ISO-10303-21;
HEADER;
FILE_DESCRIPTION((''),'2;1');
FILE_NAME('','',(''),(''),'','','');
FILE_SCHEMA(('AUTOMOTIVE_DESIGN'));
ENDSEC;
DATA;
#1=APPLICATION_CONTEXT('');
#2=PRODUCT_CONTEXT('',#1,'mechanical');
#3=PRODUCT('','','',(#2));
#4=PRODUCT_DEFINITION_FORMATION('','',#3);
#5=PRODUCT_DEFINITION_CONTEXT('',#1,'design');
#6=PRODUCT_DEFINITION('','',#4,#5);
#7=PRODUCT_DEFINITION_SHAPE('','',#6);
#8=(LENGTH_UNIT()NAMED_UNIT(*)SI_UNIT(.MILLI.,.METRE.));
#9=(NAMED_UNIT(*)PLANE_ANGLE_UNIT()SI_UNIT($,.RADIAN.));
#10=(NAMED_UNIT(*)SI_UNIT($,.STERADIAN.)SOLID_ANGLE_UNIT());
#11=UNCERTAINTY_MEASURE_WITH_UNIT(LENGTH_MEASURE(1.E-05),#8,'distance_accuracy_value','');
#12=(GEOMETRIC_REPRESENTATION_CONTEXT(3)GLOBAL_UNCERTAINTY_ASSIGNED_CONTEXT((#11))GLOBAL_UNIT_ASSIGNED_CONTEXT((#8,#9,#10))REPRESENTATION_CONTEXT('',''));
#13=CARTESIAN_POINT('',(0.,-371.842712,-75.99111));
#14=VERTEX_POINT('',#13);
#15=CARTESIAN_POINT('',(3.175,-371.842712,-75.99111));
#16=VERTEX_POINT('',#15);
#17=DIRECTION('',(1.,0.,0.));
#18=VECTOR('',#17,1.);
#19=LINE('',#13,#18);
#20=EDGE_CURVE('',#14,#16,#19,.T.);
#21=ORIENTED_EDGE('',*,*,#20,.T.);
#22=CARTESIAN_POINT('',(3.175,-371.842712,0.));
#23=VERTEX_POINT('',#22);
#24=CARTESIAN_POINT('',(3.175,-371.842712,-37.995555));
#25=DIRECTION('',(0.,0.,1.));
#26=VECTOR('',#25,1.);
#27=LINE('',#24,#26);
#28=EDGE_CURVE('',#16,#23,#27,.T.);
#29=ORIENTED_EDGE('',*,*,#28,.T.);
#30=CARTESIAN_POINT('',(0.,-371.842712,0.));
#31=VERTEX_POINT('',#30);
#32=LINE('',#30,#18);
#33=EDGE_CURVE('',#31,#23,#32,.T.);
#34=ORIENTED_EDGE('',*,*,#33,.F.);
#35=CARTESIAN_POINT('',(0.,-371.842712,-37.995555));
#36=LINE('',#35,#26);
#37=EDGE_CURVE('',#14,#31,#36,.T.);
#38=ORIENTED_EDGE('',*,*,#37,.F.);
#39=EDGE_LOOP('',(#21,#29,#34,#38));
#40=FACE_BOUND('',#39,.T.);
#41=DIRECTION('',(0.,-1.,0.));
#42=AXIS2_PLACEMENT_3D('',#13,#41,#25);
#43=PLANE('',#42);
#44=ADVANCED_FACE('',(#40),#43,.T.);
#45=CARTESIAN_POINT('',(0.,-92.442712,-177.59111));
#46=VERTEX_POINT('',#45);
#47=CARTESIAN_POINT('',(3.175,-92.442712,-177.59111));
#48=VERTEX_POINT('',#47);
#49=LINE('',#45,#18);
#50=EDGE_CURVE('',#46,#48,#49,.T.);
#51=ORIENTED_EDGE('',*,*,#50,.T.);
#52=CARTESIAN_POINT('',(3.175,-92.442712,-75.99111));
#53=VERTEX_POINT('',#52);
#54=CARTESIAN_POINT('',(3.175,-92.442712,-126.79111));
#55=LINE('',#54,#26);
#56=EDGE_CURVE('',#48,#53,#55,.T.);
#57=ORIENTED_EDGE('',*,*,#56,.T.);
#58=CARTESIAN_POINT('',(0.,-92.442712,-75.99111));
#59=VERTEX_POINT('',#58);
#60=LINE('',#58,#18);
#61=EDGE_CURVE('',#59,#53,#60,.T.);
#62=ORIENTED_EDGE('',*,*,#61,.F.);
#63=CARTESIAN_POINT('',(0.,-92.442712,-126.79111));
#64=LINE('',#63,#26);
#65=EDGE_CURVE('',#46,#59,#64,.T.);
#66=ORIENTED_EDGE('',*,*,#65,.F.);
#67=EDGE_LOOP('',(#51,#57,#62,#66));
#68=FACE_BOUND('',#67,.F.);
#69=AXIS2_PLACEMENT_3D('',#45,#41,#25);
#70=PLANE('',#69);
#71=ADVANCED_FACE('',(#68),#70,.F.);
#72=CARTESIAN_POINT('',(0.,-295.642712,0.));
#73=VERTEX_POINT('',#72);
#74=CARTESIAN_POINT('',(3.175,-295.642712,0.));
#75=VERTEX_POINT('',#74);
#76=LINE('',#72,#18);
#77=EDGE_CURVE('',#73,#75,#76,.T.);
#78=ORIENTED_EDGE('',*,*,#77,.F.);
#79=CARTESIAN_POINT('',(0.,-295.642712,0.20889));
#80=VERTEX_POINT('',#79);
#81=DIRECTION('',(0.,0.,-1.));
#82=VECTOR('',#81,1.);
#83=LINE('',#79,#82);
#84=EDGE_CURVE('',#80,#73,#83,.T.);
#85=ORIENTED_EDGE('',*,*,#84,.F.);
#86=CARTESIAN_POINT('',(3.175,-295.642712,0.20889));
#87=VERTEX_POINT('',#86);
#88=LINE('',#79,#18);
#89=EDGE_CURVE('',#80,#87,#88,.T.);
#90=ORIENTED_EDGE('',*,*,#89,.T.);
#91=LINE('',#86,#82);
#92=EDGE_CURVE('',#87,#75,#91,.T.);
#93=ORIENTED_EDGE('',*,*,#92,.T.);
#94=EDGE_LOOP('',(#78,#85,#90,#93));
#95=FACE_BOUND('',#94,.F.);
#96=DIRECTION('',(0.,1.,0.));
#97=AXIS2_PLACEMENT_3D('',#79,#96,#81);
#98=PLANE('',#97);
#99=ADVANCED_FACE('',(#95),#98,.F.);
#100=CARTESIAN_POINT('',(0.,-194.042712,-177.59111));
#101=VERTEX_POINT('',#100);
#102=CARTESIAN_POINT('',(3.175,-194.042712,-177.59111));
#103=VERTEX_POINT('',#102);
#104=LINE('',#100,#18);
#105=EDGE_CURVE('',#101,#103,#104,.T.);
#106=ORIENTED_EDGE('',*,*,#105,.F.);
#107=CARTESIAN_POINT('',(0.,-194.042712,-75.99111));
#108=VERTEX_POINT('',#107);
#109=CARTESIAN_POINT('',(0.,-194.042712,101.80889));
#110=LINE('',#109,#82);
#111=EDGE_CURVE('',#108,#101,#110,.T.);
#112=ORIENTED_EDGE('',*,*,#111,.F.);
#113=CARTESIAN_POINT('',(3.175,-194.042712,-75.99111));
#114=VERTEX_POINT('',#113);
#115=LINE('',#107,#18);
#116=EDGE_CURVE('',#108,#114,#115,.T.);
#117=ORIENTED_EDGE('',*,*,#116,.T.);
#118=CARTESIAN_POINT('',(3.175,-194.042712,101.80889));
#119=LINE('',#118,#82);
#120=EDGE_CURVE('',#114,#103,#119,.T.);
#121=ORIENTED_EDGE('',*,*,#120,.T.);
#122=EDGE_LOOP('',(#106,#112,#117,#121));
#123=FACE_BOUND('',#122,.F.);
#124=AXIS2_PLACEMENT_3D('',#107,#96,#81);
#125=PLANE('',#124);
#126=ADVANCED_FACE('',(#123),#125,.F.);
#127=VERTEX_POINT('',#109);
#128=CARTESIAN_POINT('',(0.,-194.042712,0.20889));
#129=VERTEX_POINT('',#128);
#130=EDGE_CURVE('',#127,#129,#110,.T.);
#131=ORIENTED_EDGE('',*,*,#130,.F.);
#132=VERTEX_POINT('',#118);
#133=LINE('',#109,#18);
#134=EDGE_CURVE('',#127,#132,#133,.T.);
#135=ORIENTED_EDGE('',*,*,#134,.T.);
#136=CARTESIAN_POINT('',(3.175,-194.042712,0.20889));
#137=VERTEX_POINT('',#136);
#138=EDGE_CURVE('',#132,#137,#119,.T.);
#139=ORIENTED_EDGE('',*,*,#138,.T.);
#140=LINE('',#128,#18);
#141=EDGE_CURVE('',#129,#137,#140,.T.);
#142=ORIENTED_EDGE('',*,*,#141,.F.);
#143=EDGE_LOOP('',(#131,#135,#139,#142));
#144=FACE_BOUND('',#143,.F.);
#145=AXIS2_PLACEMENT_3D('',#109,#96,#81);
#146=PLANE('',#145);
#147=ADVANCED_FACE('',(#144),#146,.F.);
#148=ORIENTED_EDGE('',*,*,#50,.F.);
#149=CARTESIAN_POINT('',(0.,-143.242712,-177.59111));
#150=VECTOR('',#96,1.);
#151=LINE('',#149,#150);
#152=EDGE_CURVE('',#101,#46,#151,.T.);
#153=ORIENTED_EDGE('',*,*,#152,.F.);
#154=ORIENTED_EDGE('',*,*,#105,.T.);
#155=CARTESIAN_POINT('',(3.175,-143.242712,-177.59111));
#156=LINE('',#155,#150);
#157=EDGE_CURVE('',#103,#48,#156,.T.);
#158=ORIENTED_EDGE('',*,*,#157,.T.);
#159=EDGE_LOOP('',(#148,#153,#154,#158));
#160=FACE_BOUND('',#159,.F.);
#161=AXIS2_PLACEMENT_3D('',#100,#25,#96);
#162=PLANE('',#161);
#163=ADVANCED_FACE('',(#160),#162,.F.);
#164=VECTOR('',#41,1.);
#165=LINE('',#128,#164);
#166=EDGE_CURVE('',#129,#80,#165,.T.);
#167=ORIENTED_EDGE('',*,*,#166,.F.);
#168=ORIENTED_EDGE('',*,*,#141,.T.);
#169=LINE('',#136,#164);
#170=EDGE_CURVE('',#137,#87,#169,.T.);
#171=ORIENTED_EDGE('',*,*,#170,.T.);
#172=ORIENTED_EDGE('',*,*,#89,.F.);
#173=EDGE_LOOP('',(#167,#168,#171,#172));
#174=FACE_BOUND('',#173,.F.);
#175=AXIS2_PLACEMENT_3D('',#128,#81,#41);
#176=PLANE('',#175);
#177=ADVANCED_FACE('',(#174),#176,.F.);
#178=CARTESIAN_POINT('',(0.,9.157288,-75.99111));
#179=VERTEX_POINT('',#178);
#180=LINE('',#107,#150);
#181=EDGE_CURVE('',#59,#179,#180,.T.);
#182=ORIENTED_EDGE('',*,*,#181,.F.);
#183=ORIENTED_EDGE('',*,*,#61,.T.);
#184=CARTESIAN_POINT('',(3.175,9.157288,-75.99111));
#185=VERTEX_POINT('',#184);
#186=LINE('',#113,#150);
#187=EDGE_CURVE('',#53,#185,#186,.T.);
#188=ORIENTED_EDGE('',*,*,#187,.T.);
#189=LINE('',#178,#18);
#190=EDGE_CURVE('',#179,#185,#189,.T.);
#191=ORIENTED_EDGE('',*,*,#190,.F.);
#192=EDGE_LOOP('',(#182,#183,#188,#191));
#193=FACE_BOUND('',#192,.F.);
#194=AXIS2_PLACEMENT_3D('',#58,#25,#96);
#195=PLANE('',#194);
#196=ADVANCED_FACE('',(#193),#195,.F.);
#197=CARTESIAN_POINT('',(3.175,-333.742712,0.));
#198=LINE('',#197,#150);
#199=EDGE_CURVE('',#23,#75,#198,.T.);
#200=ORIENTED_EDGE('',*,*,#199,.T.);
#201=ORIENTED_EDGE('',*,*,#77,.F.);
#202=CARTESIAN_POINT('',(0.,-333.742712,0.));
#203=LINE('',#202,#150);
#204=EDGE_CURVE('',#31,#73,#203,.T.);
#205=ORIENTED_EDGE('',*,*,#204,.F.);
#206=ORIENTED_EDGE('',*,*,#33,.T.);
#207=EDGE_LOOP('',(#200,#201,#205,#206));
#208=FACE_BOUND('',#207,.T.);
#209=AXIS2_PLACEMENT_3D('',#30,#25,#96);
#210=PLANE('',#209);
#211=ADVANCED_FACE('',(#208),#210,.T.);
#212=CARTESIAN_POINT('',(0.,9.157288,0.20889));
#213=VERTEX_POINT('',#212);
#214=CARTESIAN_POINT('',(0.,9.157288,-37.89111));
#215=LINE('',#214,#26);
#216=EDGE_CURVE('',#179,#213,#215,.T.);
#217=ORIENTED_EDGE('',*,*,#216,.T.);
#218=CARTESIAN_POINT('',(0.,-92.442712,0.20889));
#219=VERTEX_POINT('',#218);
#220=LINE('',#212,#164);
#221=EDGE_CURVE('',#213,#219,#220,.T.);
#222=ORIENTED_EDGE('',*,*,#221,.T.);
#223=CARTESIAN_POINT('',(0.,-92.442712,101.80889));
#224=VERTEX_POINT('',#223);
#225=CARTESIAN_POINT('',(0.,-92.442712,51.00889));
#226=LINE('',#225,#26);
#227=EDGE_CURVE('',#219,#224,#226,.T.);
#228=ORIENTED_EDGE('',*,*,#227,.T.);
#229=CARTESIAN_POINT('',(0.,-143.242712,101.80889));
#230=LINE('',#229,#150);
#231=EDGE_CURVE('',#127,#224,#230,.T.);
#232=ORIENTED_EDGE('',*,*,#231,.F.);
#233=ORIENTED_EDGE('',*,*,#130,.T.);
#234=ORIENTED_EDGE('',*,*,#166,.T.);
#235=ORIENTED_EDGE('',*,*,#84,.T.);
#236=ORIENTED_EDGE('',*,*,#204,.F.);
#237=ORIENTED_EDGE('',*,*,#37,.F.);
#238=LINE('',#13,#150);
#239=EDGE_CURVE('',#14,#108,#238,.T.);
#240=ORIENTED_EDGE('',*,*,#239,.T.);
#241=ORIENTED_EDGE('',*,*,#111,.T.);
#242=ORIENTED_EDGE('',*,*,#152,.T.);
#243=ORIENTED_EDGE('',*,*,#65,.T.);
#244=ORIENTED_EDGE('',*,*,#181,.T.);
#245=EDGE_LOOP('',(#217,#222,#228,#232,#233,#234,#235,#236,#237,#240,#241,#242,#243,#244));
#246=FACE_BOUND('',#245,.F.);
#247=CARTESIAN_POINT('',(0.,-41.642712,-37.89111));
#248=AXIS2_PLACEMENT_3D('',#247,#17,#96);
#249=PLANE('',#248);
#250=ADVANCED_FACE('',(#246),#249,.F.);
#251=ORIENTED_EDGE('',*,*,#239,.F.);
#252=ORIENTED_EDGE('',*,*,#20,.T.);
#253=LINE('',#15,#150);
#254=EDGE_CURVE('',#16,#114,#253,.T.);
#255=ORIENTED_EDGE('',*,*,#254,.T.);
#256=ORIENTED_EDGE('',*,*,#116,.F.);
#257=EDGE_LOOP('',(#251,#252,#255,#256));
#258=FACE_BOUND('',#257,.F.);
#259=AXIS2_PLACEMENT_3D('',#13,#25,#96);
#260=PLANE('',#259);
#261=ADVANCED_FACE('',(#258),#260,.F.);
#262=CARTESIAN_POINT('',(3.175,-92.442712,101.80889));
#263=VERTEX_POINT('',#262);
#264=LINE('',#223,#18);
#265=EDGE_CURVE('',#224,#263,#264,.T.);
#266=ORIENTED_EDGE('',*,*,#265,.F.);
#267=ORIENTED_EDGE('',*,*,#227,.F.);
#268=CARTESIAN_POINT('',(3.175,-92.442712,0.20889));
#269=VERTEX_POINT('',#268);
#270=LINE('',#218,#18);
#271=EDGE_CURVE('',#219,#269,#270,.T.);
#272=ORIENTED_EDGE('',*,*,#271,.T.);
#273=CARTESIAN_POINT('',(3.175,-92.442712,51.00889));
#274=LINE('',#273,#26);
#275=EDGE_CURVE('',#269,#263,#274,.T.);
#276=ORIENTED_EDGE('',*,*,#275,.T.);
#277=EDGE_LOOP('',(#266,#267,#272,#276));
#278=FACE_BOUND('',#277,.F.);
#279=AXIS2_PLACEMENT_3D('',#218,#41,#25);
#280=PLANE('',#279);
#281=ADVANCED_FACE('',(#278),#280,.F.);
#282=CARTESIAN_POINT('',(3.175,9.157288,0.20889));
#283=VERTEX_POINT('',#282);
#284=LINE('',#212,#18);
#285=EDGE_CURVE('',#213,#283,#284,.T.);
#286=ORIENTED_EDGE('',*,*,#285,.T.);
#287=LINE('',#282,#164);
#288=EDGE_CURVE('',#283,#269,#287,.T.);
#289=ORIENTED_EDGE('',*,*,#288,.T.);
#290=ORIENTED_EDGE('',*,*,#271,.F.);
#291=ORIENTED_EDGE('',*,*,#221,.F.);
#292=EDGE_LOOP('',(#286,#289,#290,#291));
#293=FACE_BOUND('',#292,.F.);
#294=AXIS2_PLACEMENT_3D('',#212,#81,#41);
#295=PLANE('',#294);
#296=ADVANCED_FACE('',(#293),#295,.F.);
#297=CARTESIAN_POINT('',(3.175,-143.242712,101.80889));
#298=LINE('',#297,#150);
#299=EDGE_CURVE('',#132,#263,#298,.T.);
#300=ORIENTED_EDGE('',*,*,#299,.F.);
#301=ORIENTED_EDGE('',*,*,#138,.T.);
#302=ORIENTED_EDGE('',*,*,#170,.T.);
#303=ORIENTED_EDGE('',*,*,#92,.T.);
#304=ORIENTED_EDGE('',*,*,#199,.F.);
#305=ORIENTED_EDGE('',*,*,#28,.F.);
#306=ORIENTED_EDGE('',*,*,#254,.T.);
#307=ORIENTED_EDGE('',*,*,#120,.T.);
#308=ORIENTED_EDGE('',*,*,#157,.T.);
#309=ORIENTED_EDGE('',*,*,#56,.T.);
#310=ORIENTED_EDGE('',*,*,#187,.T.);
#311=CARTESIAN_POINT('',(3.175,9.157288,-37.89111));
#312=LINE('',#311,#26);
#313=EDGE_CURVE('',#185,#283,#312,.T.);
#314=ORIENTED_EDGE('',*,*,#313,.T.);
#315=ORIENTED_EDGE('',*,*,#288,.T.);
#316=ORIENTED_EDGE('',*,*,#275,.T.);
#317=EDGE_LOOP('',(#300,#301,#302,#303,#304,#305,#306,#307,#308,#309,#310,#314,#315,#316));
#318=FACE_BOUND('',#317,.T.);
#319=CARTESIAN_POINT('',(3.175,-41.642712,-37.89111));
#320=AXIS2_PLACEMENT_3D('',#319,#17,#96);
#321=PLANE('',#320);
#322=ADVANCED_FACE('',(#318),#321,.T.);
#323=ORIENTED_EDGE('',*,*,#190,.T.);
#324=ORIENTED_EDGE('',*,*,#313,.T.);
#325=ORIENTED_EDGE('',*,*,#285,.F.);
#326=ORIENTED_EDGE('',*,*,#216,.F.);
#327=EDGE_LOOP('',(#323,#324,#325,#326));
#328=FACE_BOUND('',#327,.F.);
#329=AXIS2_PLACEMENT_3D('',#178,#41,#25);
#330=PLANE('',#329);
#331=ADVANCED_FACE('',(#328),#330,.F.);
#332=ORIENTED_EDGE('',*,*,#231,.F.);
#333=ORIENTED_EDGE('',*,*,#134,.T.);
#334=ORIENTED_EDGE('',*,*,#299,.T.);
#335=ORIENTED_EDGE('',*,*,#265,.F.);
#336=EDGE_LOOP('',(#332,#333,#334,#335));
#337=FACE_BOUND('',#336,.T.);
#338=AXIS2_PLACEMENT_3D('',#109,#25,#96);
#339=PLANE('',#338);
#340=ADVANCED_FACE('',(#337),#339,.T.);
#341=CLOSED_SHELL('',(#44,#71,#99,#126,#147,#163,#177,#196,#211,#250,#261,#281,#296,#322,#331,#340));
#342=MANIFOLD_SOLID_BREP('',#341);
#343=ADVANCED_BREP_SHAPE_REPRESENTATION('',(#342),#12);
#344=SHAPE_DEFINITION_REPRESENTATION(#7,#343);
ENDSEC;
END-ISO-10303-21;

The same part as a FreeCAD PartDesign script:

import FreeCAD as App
import Part
import Sketcher
Q = App.Units.Quantity

doc = App.newDocument("Part")
params = doc.addObject("Spreadsheet::Sheet", "Params")
for row, (alias, value) in enumerate([
    ("sketch1_width", "4 in"),
    ("sketch1_width2", "3 in"),
    ("pad1_length", "0.125 in"),
], start=1):
    params.set(f"A{row}", alias)
    params.set(f"B{row}", "=" + value)
    params.setAlias(f"B{row}", alias)

body = doc.addObject("PartDesign::Body", "Body")

sketch1 = body.newObject("Sketcher::SketchObject", "Sketch")
sketch1.AttachmentSupport = (doc.getObject("YZ_Plane"), [""])
sketch1.MapMode = "FlatFace"
sketch1.addGeometry([
    Part.LineSegment(App.Vector(9.16, -75.99, 0), App.Vector(9.16, 0.21, 0)),
    Part.LineSegment(App.Vector(9.16, 0.21, 0), App.Vector(-92.44, 0.21, 0)),
    Part.LineSegment(App.Vector(-92.44, 0.21, 0), App.Vector(-92.44, 101.81, 0)),
    Part.LineSegment(App.Vector(-92.44, 101.81, 0), App.Vector(-194.04, 101.81, 0)),
    Part.LineSegment(App.Vector(-194.04, 101.81, 0), App.Vector(-194.04, 0.21, 0)),
    Part.LineSegment(App.Vector(-194.04, 0.21, 0), App.Vector(-295.64, 0.21, 0)),
    Part.LineSegment(App.Vector(-295.64, 0.21, 0), App.Vector(-295.64, 0, 0)),
    Part.LineSegment(App.Vector(-295.64, 0, 0), App.Vector(-371.84, 0, 0)),
    Part.LineSegment(App.Vector(-371.84, 0, 0), App.Vector(-371.84, -75.99, 0)),
    Part.LineSegment(App.Vector(-371.84, -75.99, 0), App.Vector(-194.04, -75.99, 0)),
    Part.LineSegment(App.Vector(-194.04, -75.99, 0), App.Vector(-194.04, -177.59, 0)),
    Part.LineSegment(App.Vector(-194.04, -177.59, 0), App.Vector(-92.44, -177.59, 0)),
    Part.LineSegment(App.Vector(-92.44, -177.59, 0), App.Vector(-92.44, -75.99, 0)),
    Part.LineSegment(App.Vector(-92.44, -75.99, 0), App.Vector(9.16, -75.99, 0)),
], False)
sketch1.addConstraint([
    Sketcher.Constraint("Coincident", 0, 2, 1, 1),
    Sketcher.Constraint("Coincident", 1, 2, 2, 1),
    Sketcher.Constraint("Coincident", 2, 2, 3, 1),
    Sketcher.Constraint("Coincident", 3, 2, 4, 1),
    Sketcher.Constraint("Coincident", 4, 2, 5, 1),
    Sketcher.Constraint("Coincident", 5, 2, 6, 1),
    Sketcher.Constraint("Coincident", 6, 2, 7, 1),
    Sketcher.Constraint("Coincident", 7, 2, 8, 1),
    Sketcher.Constraint("Coincident", 8, 2, 9, 1),
    Sketcher.Constraint("Coincident", 9, 2, 10, 1),
    Sketcher.Constraint("Coincident", 10, 2, 11, 1),
    Sketcher.Constraint("Coincident", 11, 2, 12, 1),
    Sketcher.Constraint("Coincident", 12, 2, 13, 1),
    Sketcher.Constraint("Coincident", 13, 2, 0, 1),
    Sketcher.Constraint("Vertical", 0),
    Sketcher.Constraint("Horizontal", 1),
    Sketcher.Constraint("Vertical", 2),
    Sketcher.Constraint("Horizontal", 3),
    Sketcher.Constraint("Vertical", 4),
    Sketcher.Constraint("Horizontal", 5),
    Sketcher.Constraint("Vertical", 6),
    Sketcher.Constraint("Horizontal", 7),
    Sketcher.Constraint("Vertical", 8),
    Sketcher.Constraint("Horizontal", 9),
    Sketcher.Constraint("Vertical", 10),
    Sketcher.Constraint("Horizontal", 11),
    Sketcher.Constraint("Vertical", 12),
    Sketcher.Constraint("Horizontal", 13),
    Sketcher.Constraint("PointOnObject", 6, 2, -1),
    Sketcher.Constraint("Horizontal", 1, 2, 4, 2),
    Sketcher.Constraint("Horizontal", 9, 2, 12, 2),
    Sketcher.Constraint("Vertical", 4, 2, 9, 2),
    Sketcher.Constraint("Vertical", 2, 2, 11, 2),
    Sketcher.Constraint("Equal", 1, 3),
    Sketcher.Constraint("Equal", 3, 5),
    Sketcher.Constraint("Equal", 7, 0),
    Sketcher.Constraint("Equal", 13, 2),
    Sketcher.Constraint("Equal", 4, 10),
    Sketcher.Constraint("DistanceX", 1, 2, 1, 1, Q("4 in")),
    Sketcher.Constraint("DistanceX", 7, 2, 7, 1, Q("3 in")),
    Sketcher.Constraint("DistanceY", 6, 2, 6, 1, Q("0.20889 mm")),
    Sketcher.Constraint("DistanceX", -1, 1, 0, 2, Q("9.157288 mm")),
])
sketch1.setExpression("Constraints[38]", "Params.sketch1_width")
sketch1.setExpression("Constraints[39]", "Params.sketch1_width2")
pad1 = body.newObject("PartDesign::Pad", "Pad")
pad1.Profile = sketch1
pad1.setExpression("Length", "Params.pad1_length")

doc.recompute()
